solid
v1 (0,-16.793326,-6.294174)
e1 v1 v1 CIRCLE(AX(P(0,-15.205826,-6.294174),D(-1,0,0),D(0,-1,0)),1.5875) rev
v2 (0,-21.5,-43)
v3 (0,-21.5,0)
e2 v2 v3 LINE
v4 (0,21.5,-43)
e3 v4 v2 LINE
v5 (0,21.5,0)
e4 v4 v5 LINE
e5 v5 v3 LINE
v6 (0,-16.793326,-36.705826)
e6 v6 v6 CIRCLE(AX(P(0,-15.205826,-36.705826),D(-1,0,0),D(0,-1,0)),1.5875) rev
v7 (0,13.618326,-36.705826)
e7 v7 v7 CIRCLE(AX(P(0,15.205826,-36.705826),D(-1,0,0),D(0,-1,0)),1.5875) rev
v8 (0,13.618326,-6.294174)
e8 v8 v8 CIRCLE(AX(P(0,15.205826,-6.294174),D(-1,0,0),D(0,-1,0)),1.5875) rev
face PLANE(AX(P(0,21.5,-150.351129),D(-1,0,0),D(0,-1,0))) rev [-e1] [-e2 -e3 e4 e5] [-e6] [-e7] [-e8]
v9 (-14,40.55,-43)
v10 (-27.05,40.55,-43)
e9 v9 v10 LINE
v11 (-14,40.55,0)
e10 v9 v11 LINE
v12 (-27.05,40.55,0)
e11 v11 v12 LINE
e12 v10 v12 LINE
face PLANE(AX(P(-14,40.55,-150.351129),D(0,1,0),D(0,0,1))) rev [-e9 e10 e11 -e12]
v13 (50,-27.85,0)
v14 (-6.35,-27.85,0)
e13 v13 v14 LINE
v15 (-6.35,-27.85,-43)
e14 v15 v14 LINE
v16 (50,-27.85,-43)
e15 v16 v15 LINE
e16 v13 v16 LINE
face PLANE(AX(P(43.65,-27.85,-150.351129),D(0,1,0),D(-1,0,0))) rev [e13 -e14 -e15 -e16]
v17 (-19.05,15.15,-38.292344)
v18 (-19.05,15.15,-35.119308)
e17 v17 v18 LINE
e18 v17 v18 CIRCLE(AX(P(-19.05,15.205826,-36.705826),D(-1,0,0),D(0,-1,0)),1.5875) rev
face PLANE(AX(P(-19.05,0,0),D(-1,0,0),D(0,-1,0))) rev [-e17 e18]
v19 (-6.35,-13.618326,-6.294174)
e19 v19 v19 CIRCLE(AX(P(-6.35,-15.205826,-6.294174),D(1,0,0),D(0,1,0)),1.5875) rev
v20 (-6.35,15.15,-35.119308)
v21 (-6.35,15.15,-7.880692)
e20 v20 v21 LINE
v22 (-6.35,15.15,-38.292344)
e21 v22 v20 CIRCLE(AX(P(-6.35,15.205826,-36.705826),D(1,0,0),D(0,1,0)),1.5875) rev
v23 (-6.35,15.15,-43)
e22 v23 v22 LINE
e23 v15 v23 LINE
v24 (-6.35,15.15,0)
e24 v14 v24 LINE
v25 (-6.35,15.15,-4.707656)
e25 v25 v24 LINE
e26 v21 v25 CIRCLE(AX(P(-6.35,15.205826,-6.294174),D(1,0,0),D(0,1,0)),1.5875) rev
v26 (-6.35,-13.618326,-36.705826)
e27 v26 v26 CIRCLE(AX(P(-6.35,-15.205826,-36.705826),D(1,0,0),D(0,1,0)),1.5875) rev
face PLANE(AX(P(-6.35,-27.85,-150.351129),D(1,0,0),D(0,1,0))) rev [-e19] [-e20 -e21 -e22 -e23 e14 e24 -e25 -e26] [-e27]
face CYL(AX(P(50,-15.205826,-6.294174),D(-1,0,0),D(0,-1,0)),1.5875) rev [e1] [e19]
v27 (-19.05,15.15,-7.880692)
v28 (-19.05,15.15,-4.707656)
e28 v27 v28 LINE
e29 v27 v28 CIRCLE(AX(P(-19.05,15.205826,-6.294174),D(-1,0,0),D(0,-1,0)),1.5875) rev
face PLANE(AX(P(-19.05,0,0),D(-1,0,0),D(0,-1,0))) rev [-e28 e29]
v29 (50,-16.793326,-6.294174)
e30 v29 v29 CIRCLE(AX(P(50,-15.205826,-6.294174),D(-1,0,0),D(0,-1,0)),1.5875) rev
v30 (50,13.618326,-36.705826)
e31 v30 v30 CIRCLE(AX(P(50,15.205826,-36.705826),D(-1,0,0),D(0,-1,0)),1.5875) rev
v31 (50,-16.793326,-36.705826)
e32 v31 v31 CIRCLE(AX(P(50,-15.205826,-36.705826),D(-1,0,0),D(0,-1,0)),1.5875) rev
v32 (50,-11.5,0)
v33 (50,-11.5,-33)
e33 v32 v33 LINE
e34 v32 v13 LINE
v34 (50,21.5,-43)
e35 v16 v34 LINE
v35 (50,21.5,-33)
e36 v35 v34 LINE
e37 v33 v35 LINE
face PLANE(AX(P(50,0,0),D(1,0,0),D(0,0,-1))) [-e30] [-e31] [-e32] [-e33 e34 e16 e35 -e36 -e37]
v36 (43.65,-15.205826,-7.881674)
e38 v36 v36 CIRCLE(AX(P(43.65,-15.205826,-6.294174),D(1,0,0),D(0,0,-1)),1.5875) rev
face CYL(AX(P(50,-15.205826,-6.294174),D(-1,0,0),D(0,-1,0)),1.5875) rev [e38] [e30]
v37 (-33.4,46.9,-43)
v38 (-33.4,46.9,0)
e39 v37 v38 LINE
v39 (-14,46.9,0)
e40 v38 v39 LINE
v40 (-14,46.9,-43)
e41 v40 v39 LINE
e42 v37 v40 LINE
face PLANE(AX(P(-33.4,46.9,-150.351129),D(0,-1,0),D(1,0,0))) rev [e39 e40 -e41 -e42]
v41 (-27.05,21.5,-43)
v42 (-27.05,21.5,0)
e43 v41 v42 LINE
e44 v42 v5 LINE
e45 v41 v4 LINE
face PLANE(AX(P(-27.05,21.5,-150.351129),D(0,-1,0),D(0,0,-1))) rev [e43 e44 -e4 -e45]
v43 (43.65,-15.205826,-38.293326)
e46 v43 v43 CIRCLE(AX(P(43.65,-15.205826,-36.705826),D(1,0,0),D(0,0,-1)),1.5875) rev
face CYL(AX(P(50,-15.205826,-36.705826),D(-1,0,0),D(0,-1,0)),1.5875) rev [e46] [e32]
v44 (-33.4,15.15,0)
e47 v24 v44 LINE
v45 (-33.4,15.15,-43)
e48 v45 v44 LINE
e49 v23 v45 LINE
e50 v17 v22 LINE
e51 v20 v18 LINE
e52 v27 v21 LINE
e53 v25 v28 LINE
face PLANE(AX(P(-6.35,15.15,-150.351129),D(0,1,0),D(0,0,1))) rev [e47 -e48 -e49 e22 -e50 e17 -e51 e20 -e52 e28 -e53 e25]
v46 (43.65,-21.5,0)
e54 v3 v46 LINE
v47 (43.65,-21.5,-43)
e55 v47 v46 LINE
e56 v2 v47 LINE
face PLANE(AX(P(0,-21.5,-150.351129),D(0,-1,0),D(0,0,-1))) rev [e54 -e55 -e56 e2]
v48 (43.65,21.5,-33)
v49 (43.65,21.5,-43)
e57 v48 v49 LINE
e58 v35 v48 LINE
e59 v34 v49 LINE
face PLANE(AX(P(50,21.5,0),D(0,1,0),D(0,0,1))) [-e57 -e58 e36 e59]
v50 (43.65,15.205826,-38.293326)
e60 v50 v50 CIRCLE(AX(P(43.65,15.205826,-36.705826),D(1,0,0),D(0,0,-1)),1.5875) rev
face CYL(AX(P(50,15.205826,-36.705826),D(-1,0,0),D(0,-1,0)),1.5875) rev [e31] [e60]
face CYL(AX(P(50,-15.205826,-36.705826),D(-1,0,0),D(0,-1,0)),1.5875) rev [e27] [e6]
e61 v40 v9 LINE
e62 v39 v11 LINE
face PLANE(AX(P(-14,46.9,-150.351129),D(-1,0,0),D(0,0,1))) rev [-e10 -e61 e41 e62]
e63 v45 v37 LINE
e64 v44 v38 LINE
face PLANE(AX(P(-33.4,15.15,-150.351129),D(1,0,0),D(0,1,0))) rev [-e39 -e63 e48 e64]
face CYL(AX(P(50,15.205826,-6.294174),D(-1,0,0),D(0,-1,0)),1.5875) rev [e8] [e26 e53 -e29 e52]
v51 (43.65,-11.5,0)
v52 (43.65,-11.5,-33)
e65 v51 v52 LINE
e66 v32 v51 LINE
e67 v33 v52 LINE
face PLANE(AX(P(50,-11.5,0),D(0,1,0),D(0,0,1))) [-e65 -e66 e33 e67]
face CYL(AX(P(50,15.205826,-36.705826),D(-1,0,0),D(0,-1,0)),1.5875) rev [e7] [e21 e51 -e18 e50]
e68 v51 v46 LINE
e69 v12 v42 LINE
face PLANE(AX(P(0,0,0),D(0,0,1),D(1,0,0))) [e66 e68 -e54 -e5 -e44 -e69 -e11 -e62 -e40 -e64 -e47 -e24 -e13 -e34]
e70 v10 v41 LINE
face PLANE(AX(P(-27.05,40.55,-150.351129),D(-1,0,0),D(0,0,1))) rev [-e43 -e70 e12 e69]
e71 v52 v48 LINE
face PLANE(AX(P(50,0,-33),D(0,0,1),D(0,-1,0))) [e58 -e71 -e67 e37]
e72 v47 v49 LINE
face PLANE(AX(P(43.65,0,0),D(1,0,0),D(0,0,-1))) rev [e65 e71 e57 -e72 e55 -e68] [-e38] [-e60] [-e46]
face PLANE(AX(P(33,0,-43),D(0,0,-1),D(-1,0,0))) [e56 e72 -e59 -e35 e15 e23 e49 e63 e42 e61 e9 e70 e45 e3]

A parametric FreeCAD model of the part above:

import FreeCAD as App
import Part
import Sketcher

V = App.Vector
Q = App.Units.Quantity

doc = App.newDocument("Part")
body = doc.addObject("PartDesign::Body", "Body")

# Sketch on XY plane
sketch1 = body.newObject("Sketcher::SketchObject", "Sketch")
sketch1.AttachmentSupport = (doc.getObject("XY_Plane"), [""])
sketch1.MapMode = "FlatFace"
sketch1.addGeometry([
    Part.LineSegment(V(-6, 15, 0), V(-6, -28, 0)),  # 0
    Part.LineSegment(V(-6, -28, 0), V(44, -28, 0)),  # 1
    Part.LineSegment(V(44, -28, 0), V(44, -22, 0)),  # 2
    Part.LineSegment(V(44, -22, 0), V(0, -22, 0)),  # 3
    Part.LineSegment(V(0, -22, 0), V(0, 22, 0)),  # 4
    Part.LineSegment(V(0, 22, 0), V(-27, 22, 0)),  # 5
    Part.LineSegment(V(-27, 22, 0), V(-27, 41, 0)),  # 6
    Part.LineSegment(V(-27, 41, 0), V(-14, 41, 0)),  # 7
    Part.LineSegment(V(-14, 41, 0), V(-14, 47, 0)),  # 8
    Part.LineSegment(V(-14, 47, 0), V(-33, 47, 0)),  # 9
    Part.LineSegment(V(-33, 47, 0), V(-33, 15, 0)),  # 10
    Part.LineSegment(V(-33, 15, 0), V(-6, 15, 0)),  # 11
], False)
sketch1.addConstraint([
    Sketcher.Constraint("Coincident", 0, 2, 1, 1),
    Sketcher.Constraint("Coincident", 1, 2, 2, 1),
    Sketcher.Constraint("Coincident", 2, 2, 3, 1),
    Sketcher.Constraint("Coincident", 3, 2, 4, 1),
    Sketcher.Constraint("Coincident", 4, 2, 5, 1),
    Sketcher.Constraint("Coincident", 5, 2, 6, 1),
    Sketcher.Constraint("Coincident", 6, 2, 7, 1),
    Sketcher.Constraint("Coincident", 7, 2, 8, 1),
    Sketcher.Constraint("Coincident", 8, 2, 9, 1),
    Sketcher.Constraint("Coincident", 9, 2, 10, 1),
    Sketcher.Constraint("Coincident", 10, 2, 11, 1),
    Sketcher.Constraint("Coincident", 11, 2, 0, 1),
    Sketcher.Constraint("Vertical", 0),
    Sketcher.Constraint("Horizontal", 1),
    Sketcher.Constraint("Vertical", 2),
    Sketcher.Constraint("Horizontal", 3),
    Sketcher.Constraint("Vertical", 4),
    Sketcher.Constraint("Horizontal", 5),
    Sketcher.Constraint("Vertical", 6),
    Sketcher.Constraint("Horizontal", 7),
    Sketcher.Constraint("Vertical", 8),
    Sketcher.Constraint("Horizontal", 9),
    Sketcher.Constraint("Vertical", 10),
    Sketcher.Constraint("Horizontal", 11),
    Sketcher.Constraint("Symmetric", 3, 2, 4, 2, -1, 1),
    Sketcher.Constraint("Equal", 5, 11),
    Sketcher.Constraint("Equal", 0, 4),
    Sketcher.Constraint("Equal", 2, 8),
    Sketcher.Constraint("DistanceX", 1, 1, 1, 2, Q("50 mm")),
    Sketcher.Constraint("DistanceY", 0, 2, 0, 1, Q("43 mm")),
    Sketcher.Constraint("DistanceX", 9, 2, 9, 1, Q("19.4 mm")),
    Sketcher.Constraint("DistanceX", 7, 2, -1, 1, Q("14 mm")),
    Sketcher.Constraint("DistanceX", 3, 2, 3, 1, Q("43.65 mm")),
    Sketcher.Constraint("DistanceY", 2, 1, 2, 2, Q("6.35 mm")),
    Sketcher.Constraint("DistanceY", 6, 1, 6, 2, Q("19.05 mm")),
])
pad1 = body.newObject("PartDesign::Pad", "Pad")
pad1.Profile = sketch1
pad1.Length = 43
pad1.Reversed = True

# Sketch on YZ plane
sketch2 = body.newObject("Sketcher::SketchObject", "Sketch001")
sketch2.AttachmentSupport = (doc.getObject("YZ_Plane"), [""])
sketch2.MapMode = "FlatFace"
sketch2.AttachmentOffset = App.Placement(V(0, 0, 43.65), App.Rotation())
sketch2.addGeometry([
    Part.LineSegment(V(-27.9, 0, 0), V(-27.9, -43, 0)),  # 0
    Part.LineSegment(V(-27.9, -43, 0), V(21.5, -43, 0)),  # 1
    Part.LineSegment(V(21.5, -43, 0), V(21.5, -33, 0)),  # 2
    Part.LineSegment(V(21.5, -33, 0), V(-11.5, -33, 0)),  # 3
    Part.LineSegment(V(-11.5, -33, 0), V(-11.5, 0, 0)),  # 4
    Part.LineSegment(V(-11.5, 0, 0), V(-27.9, 0, 0)),  # 5
    Part.Circle(V(-15.2, -6.3, 0), V(0, 0, 1), 1.5),  # 6
    Part.Circle(V(15.2, -36.7, 0), V(0, 0, 1), 1.5),  # 7
    Part.Circle(V(-15.2, -36.7, 0), V(0, 0, 1), 1.5),  # 8
], False)
sketch2.addConstraint([
    Sketcher.Constraint("Coincident", 0, 2, 1, 1),
    Sketcher.Constraint("Coincident", 1, 2, 2, 1),
    Sketcher.Constraint("Coincident", 2, 2, 3, 1),
    Sketcher.Constraint("Coincident", 3, 2, 4, 1),
    Sketcher.Constraint("Coincident", 4, 2, 5, 1),
    Sketcher.Constraint("Coincident", 5, 2, 0, 1),
    Sketcher.Constraint("Vertical", 0),
    Sketcher.Constraint("Horizontal", 1),
    Sketcher.Constraint("Vertical", 2),
    Sketcher.Constraint("Horizontal", 3),
    Sketcher.Constraint("Vertical", 4),
    Sketcher.Constraint("Horizontal", 5),
    Sketcher.Constraint("Equal", 6, 7),
    Sketcher.Constraint("Equal", 7, 8),
    Sketcher.Constraint("Symmetric", 7, 3, 8, 3, -2),
    Sketcher.Constraint("PointOnObject", 4, 2, -1),
    Sketcher.Constraint("Vertical", 6, 3, 8, 3),
    Sketcher.Constraint("Equal", 3, 4),
    Sketcher.Constraint("Diameter", 6, Q("3 mm")),
    Sketcher.Constraint("DistanceX", 3, 2, 3, 1, Q("33 mm")),
    Sketcher.Constraint("DistanceY", 0, 2, 0, 1, Q("43 mm")),
    Sketcher.Constraint("DistanceX", 1, 1, 1, 2, Q("49.35 mm")),
    Sketcher.Constraint("DistanceX", -1, 1, 1, 2, Q("21.5 mm")),
    Sketcher.Constraint("DistanceX", 6, 3, 7, 3, Q("30.411652 mm")),
    Sketcher.Constraint("DistanceY", 7, 3, 6, 3, Q("30.411652 mm")),
    Sketcher.Constraint("DistanceY", 6, 3, -1, 1, Q("6.294174 mm")),
])
pad2 = body.newObject("PartDesign::Pad", "Pad001")
pad2.Profile = sketch2
pad2.Length = 6.35

# Sketch on YZ plane
sketch3 = body.newObject("Sketcher::SketchObject", "Sketch002")
sketch3.AttachmentSupport = (doc.getObject("YZ_Plane"), [""])
sketch3.MapMode = "FlatFace"
sketch3.AttachmentOffset = App.Placement(V(0, 0, -6.35), App.Rotation())
sketch3.addGeometry([
    Part.Circle(V(-15.2, -6.3, 0), V(0, 0, 1), 1.6),
    Part.Circle(V(15.2, -6.3, 0), V(0, 0, 1), 1.6),
    Part.Circle(V(15.2, -36.7, 0), V(0, 0, 1), 1.6),
    Part.Circle(V(-15.2, -36.7, 0), V(0, 0, 1), 1.6),
], False)
sketch3.addConstraint([
    Sketcher.Constraint("Equal", 0, 1),
    Sketcher.Constraint("Equal", 1, 2),
    Sketcher.Constraint("Equal", 2, 3),
    Sketcher.Constraint("Symmetric", 0, 3, 1, 3, -2),
    Sketcher.Constraint("Symmetric", 2, 3, 3, 3, -2),
    Sketcher.Constraint("Vertical", 1, 3, 2, 3),
    Sketcher.Constraint("Diameter", 0, Q("3.175 mm")),
    Sketcher.Constraint("DistanceX", 0, 3, 1, 3, Q("30.411652 mm")),
    Sketcher.Constraint("DistanceY", 2, 3, 1, 3, Q("30.411652 mm")),
    Sketcher.Constraint("DistanceY", 0, 3, -1, 1, Q("6.294174 mm")),
])
pocket1 = body.newObject("PartDesign::Pocket", "Pocket")
pocket1.Profile = sketch3
pocket1.Type = "TwoLengths"
pocket1.Length = 85.99372
pocket1.Length2 = 12.7
pocket1.Reversed = True

doc.recompute()
